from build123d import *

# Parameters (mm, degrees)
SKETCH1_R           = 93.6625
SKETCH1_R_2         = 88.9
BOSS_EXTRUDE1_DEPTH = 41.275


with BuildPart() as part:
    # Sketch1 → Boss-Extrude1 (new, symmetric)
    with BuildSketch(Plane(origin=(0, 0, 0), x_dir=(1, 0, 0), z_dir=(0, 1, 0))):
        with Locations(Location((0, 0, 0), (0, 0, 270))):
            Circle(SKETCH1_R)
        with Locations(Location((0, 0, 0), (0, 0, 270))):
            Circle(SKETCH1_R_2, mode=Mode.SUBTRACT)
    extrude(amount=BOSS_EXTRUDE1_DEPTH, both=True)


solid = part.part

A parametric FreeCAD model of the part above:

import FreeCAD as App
import Part
import Sketcher
Q = App.Units.Quantity

doc = App.newDocument("Part")
body = doc.addObject("PartDesign::Body", "Body")

# Sketch on XZ plane
sketch1 = body.newObject("Sketcher::SketchObject", "Sketch")
sketch1.AttachmentSupport = (doc.getObject("XZ_Plane"), [""])
sketch1.MapMode = "FlatFace"
sketch1.addGeometry([
    Part.Circle(App.Vector(0, 0, 0), App.Vector(0, 0, 1), 93.6625),
    Part.Circle(App.Vector(0, 0, 0), App.Vector(0, 0, 1), 88.9),
], False)
sketch1.addConstraint([
    Sketcher.Constraint("Coincident", 0, 3, -1, 1),
    Sketcher.Constraint("Coincident", 1, 3, -1, 1),
    Sketcher.Constraint("Diameter", 1, Q("7 in")),
    Sketcher.Constraint("Diameter", 0, Q("7.375 in")),
])
pad1 = body.newObject("PartDesign::Pad", "Pad")
pad1.Profile = sketch1
pad1.Length = Q("3.25 in")
pad1.Midplane = True

doc.recompute()
